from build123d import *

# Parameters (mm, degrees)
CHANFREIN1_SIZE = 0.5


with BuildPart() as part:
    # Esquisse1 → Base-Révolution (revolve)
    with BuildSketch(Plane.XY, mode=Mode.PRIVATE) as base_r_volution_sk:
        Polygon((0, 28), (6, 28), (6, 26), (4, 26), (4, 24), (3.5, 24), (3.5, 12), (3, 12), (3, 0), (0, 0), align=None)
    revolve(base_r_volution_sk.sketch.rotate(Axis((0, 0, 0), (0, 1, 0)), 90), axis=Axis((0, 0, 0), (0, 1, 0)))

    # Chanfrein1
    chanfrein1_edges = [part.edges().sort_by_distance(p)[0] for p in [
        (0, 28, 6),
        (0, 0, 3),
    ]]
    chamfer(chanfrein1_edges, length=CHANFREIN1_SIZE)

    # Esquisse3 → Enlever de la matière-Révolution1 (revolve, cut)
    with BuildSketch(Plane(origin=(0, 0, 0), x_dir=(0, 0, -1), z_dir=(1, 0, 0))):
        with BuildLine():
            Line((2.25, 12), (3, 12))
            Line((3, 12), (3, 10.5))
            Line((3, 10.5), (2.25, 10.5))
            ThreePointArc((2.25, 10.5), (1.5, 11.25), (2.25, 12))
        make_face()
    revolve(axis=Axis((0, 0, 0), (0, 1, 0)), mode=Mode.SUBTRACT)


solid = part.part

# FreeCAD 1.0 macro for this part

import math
import FreeCAD as App
import Part
import Sketcher
from FreeCAD import Vector


def edges_at(feature, points):
    """Names of the edges that pass closest to the given points."""
    edges = feature.Shape.Edges
    near = lambda p: min(range(len(edges)), key=lambda i: edges[i].distToShape(Part.Vertex(*p))[0])
    return sorted({f"Edge{near(p) + 1}" for p in points})

doc = App.newDocument("Part")
body = doc.addObject("PartDesign::Body", "Body")

sketch1 = body.newObject("Sketcher::SketchObject", "Sketch")
sketch1.AttachmentSupport = (doc.getObject("XY_Plane"), [""])
sketch1.MapMode = "FlatFace"
sketch1.addGeometry(Part.LineSegment(Vector(6, 28, 0), Vector(0, 28, 0)), False)
sketch1.addGeometry(Part.LineSegment(Vector(0, 28, 0), Vector(0, 0, 0)), False)
sketch1.addGeometry(Part.LineSegment(Vector(0, 0, 0), Vector(3, 0, 0)), False)
sketch1.addGeometry(Part.LineSegment(Vector(3, 0, 0), Vector(3, 12, 0)), False)
sketch1.addGeometry(Part.LineSegment(Vector(3, 12, 0), Vector(3.5, 12, 0)), False)
sketch1.addGeometry(Part.LineSegment(Vector(3.5, 12, 0), Vector(3.5, 24, 0)), False)
sketch1.addGeometry(Part.LineSegment(Vector(3.5, 24, 0), Vector(4, 24, 0)), False)
sketch1.addGeometry(Part.LineSegment(Vector(4, 24, 0), Vector(4, 26, 0)), False)
sketch1.addGeometry(Part.LineSegment(Vector(4, 26, 0), Vector(6, 26, 0)), False)
sketch1.addGeometry(Part.LineSegment(Vector(6, 26, 0), Vector(6, 28, 0)), False)
sketch1.addConstraint(Sketcher.Constraint("Coincident", 0, 2, 1, 1))
sketch1.addConstraint(Sketcher.Constraint("Coincident", 1, 2, 2, 1))
sketch1.addConstraint(Sketcher.Constraint("Coincident", 2, 2, 3, 1))
sketch1.addConstraint(Sketcher.Constraint("Coincident", 3, 2, 4, 1))
sketch1.addConstraint(Sketcher.Constraint("Coincident", 4, 2, 5, 1))
sketch1.addConstraint(Sketcher.Constraint("Coincident", 5, 2, 6, 1))
sketch1.addConstraint(Sketcher.Constraint("Coincident", 6, 2, 7, 1))
sketch1.addConstraint(Sketcher.Constraint("Coincident", 7, 2, 8, 1))
sketch1.addConstraint(Sketcher.Constraint("Coincident", 8, 2, 9, 1))
sketch1.addConstraint(Sketcher.Constraint("Coincident", 9, 2, 0, 1))
sketch1.addConstraint(Sketcher.Constraint("Horizontal", 0))
sketch1.addConstraint(Sketcher.Constraint("Vertical", 1))
sketch1.addConstraint(Sketcher.Constraint("Horizontal", 2))
sketch1.addConstraint(Sketcher.Constraint("Vertical", 3))
sketch1.addConstraint(Sketcher.Constraint("Horizontal", 4))
sketch1.addConstraint(Sketcher.Constraint("Vertical", 5))
sketch1.addConstraint(Sketcher.Constraint("Horizontal", 6))
sketch1.addConstraint(Sketcher.Constraint("Vertical", 7))
sketch1.addConstraint(Sketcher.Constraint("Horizontal", 8))
sketch1.addConstraint(Sketcher.Constraint("Vertical", 9))
sketch1.addConstraint(Sketcher.Constraint("Coincident", 1, 2, -1, 1))
sketch1.addConstraint(Sketcher.Constraint("Equal", 4, 6))
sketch1.addConstraint(Sketcher.Constraint("Equal", 3, 5))
sketch1.addConstraint(Sketcher.Constraint("Equal", 8, 7))
sketch1.addConstraint(Sketcher.Constraint("Equal", 7, 9))
sketch1.addConstraint(Sketcher.Constraint("DistanceX", 0, 2, 0, 1, 6.0))
sketch1.addConstraint(Sketcher.Constraint("DistanceX", 2, 1, 2, 2, 3.0))
sketch1.addConstraint(Sketcher.Constraint("DistanceX", 8, 1, 8, 2, 2.0))
sketch1.addConstraint(Sketcher.Constraint("DistanceY", 1, 2, 1, 1, 28.0))
revolution = body.newObject("PartDesign::Revolution", "Revolution")
revolution.Profile = sketch1
revolution.ReferenceAxis = (sketch1, ["V_Axis"])
revolution.Angle = 360
doc.recompute()

chamfer = body.newObject("PartDesign::Chamfer", "Chamfer")
chamfer.Base = (revolution, edges_at(revolution, [(0, 28, 6), (0, 0, 3)]))
chamfer.Size = 0.5

sketch2 = body.newObject("Sketcher::SketchObject", "Sketch001")
sketch2.AttachmentSupport = (doc.getObject("YZ_Plane"), [""])
sketch2.MapMode = "FlatFace"
sketch2.addGeometry(Part.LineSegment(Vector(12, -3, 0), Vector(12, -2.2, 0)), False)
sketch2.addGeometry(Part.ArcOfCircle(Part.Circle(Vector(11.2, -2.2, 0), Vector(0, 0, 1), 0.8), math.radians(0), math.radians(180)), False)
sketch2.addGeometry(Part.LineSegment(Vector(10.5, -2.2, 0), Vector(10.5, -3, 0)), False)
sketch2.addGeometry(Part.LineSegment(Vector(10.5, -3, 0), Vector(12, -3, 0)), False)
sketch2.addConstraint(Sketcher.Constraint("Tangent", 0, 2, 1, 1))
sketch2.addConstraint(Sketcher.Constraint("Tangent", 1, 2, 2, 1))
sketch2.addConstraint(Sketcher.Constraint("Coincident", 2, 2, 3, 1))
sketch2.addConstraint(Sketcher.Constraint("Coincident", 3, 2, 0, 1))
sketch2.addConstraint(Sketcher.Constraint("Vertical", 0))
sketch2.addConstraint(Sketcher.Constraint("Vertical", 2))
sketch2.addConstraint(Sketcher.Constraint("Horizontal", 3))
sketch2.addConstraint(Sketcher.Constraint("Radius", 1, 0.75))
sketch2.addConstraint(Sketcher.Constraint("DistanceX", -1, 1, 0, 2, 12.0))
sketch2.addConstraint(Sketcher.Constraint("DistanceY", 2, 2, -1, 1, 3.0))
sketch2.addConstraint(Sketcher.Constraint("DistanceY", 0, 1, 0, 2, 0.75))
groove = body.newObject("PartDesign::Groove", "Groove")
groove.Profile = sketch2
groove.ReferenceAxis = (sketch2, ["H_Axis"])
groove.Angle = 360

doc.recompute()
